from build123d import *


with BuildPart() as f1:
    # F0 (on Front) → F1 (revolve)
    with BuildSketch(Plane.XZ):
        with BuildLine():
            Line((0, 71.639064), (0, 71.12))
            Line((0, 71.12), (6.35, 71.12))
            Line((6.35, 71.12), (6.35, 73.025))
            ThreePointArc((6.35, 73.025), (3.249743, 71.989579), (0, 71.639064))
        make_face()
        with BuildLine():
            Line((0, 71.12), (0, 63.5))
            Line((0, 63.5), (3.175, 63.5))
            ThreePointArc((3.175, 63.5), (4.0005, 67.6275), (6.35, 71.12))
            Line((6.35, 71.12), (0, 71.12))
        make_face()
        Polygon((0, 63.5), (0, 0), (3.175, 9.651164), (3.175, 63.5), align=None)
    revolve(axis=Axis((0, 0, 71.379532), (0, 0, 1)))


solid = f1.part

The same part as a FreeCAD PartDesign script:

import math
import FreeCAD as App
import Part
import Sketcher
Q = App.Units.Quantity

doc = App.newDocument("Part")
params = doc.addObject("Spreadsheet::Sheet", "Params")
for row, (alias, value) in enumerate([
    ("sketch1_radius", "0.6000001 in"),
    ("sketch1_length", "0.4 in"),
    ("sketch1_height", "0.075 in"),
    ("revolution_angle", "360 deg"),
], start=1):
    params.set(f"A{row}", alias)
    params.set(f"B{row}", "=" + value)
    params.setAlias(f"B{row}", alias)

body = doc.addObject("PartDesign::Body", "Body")

sketch1 = body.newObject("Sketcher::SketchObject", "Sketch")
sketch1.AttachmentSupport = (doc.getObject("XZ_Plane"), [""])
sketch1.MapMode = "FlatFace"
sketch1.addGeometry([
    Part.LineSegment(App.Vector(0, 71.639064, 0), App.Vector(0, 0, 0)),
    Part.LineSegment(App.Vector(0, 0, 0), App.Vector(3.175, 9.651164, 0)),
    Part.LineSegment(App.Vector(3.175, 9.651164, 0), App.Vector(3.175, 63.5, 0)),
    Part.ArcOfCircle(Part.Circle(App.Vector(13.9065, 63.5, 0), App.Vector(0, 0, 1), 10.7315), math.radians(134.76027), math.radians(180)),
    Part.LineSegment(App.Vector(6.35, 71.12, 0), App.Vector(6.35, 73.025, 0)),
    Part.ArcOfCircle(Part.Circle(App.Vector(-0.000001, 86.879066, 0), App.Vector(0, 0, 1), 15.240002), math.radians(-89.999995), math.radians(-65.37568)),
], False)
sketch1.addConstraint([
    Sketcher.Constraint("Coincident", 0, 2, 1, 1),
    Sketcher.Constraint("Coincident", 1, 2, 2, 1),
    Sketcher.Constraint("Tangent", 2, 2, 3, 2),
    Sketcher.Constraint("Coincident", 3, 1, 4, 1),
    Sketcher.Constraint("Coincident", 4, 2, 5, 2),
    Sketcher.Constraint("Coincident", 5, 1, 0, 1),
    Sketcher.Constraint("Vertical", 0),
    Sketcher.Constraint("Vertical", 2),
    Sketcher.Constraint("Vertical", 4),
    Sketcher.Constraint("Coincident", 0, 2, -1, 1),
    Sketcher.Constraint("PointOnObject", 5, 3, -2),
    Sketcher.Constraint("Radius", 5, Q("0.6000001 in")),
    Sketcher.Constraint("Distance", 1, Q("0.4 in")),
    Sketcher.Constraint("DistanceY", -1, 1, 3, 3, Q("2.5 in")),
    Sketcher.Constraint("DistanceY", -1, 1, 3, 1, Q("2.8 in")),
    Sketcher.Constraint("Radius", 3, Q("0.4225 in")),
    Sketcher.Constraint("DistanceY", 4, 1, 4, 2, Q("0.075 in")),
    Sketcher.Constraint("DistanceX", -1, 1, 3, 1, Q("0.25 in")),
])
sketch1.setExpression("Constraints[11]", "Params.sketch1_radius")
sketch1.setExpression("Constraints[12]", "Params.sketch1_length")
sketch1.setExpression("Constraints[16]", "Params.sketch1_height")
revolution = body.newObject("PartDesign::Revolution", "Revolution")
revolution.Profile = sketch1
revolution.ReferenceAxis = (sketch1, ["V_Axis"])
revolution.setExpression("Angle", "Params.revolution_angle")

doc.recompute()
